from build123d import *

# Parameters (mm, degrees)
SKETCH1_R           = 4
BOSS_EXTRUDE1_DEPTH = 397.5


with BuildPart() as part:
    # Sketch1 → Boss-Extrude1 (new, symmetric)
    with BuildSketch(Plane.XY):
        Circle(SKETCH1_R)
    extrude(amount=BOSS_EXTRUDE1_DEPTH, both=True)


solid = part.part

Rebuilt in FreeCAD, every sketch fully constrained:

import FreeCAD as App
import Part
import Sketcher

V = App.Vector
Q = App.Units.Quantity

doc = App.newDocument("Part")
params = doc.addObject("Spreadsheet::Sheet", "Params")
for row, (alias, value) in enumerate([
    ("sketch1_diameter", "8 mm"),
    ("pad1_length", "795 mm"),
], start=1):
    params.set(f"A{row}", alias)
    params.set(f"B{row}", "=" + value)
    params.setAlias(f"B{row}", alias)

body = doc.addObject("PartDesign::Body", "Body")

sketch1 = doc.addObject("Sketcher::SketchObject", "Sketch")
body.addObject(sketch1)
sketch1.AttachmentSupport = (doc.XY_Plane, [""])
sketch1.MapMode = "FlatFace"
sketch1.addGeometry(Part.Circle(V(0, 0, 0), V(0, 0, 1), 4), False)
sketch1.addConstraint(Sketcher.Constraint("Coincident", 0, 3, -1, 1))
sketch1.addConstraint(Sketcher.Constraint("Diameter", 0, Q("8 mm")))
sketch1.setExpression("Constraints[1]", "Params.sketch1_diameter")
pad1 = doc.addObject("PartDesign::Pad", "Pad")
body.addObject(pad1)
pad1.Profile = sketch1
pad1.setExpression("Length", "Params.pad1_length")
pad1.Midplane = True

doc.recompute()
